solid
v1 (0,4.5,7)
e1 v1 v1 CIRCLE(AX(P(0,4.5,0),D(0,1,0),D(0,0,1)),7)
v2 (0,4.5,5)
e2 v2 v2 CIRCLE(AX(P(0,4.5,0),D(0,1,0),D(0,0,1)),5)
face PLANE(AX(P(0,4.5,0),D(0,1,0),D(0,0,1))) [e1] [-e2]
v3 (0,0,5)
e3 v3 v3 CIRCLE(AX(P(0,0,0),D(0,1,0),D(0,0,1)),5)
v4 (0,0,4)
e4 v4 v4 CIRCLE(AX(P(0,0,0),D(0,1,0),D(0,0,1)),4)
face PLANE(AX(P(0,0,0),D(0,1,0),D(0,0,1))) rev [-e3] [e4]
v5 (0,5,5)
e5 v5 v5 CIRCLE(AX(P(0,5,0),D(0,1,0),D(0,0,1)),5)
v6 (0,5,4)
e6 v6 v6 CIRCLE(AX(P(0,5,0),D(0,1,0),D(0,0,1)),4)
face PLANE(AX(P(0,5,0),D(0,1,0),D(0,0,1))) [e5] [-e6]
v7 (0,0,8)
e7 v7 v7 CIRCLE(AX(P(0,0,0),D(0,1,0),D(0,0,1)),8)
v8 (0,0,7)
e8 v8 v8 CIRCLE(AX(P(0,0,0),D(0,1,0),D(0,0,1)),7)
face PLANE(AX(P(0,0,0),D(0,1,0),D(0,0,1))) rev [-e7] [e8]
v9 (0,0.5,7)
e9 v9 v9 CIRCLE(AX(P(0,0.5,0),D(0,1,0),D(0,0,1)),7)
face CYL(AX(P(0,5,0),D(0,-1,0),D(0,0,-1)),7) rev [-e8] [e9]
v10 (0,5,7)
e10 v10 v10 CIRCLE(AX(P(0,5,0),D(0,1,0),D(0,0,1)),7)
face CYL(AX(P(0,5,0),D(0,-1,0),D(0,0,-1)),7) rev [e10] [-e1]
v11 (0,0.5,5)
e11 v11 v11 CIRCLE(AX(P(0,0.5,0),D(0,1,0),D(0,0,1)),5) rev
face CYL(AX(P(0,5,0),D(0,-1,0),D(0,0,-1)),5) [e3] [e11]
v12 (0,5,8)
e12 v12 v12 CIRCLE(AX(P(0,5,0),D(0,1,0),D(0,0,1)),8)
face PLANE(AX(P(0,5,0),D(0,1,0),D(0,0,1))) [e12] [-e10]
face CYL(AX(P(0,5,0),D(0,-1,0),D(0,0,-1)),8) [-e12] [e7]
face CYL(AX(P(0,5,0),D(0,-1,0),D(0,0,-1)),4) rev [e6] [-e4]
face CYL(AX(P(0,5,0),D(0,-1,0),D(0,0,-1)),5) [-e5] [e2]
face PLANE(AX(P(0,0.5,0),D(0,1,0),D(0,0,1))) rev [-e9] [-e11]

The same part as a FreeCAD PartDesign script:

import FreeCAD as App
import Part
import Sketcher

doc = App.newDocument("Part")
body = doc.addObject("PartDesign::Body", "Body")

sketch1 = body.newObject("Sketcher::SketchObject", "Sketch")
sketch1.AttachmentSupport = (doc.getObject("XZ_Plane"), [""])
sketch1.MapMode = "FlatFace"
sketch1.addGeometry([
    Part.Circle(App.Vector(0, 0, 0), App.Vector(0, 0, 1), 8),
    Part.Circle(App.Vector(0, 0, 0), App.Vector(0, 0, 1), 7),
], False)
sketch1.addConstraint([
    Sketcher.Constraint("Coincident", 0, 3, -1, 1),
    Sketcher.Constraint("Coincident", 1, 3, -1, 1),
    Sketcher.Constraint("Diameter", 0, 16.0),
    Sketcher.Constraint("Diameter", 1, 14.0),
])
pad1 = body.newObject("PartDesign::Pad", "Pad")
pad1.Profile = sketch1
pad1.Length = 5
pad1.Reversed = True
body2 = doc.addObject("PartDesign::Body", "Body001")

sketch2 = body2.newObject("Sketcher::SketchObject", "Sketch001")
sketch2.AttachmentSupport = (doc.getObject("XZ_Plane001"), [""])
sketch2.MapMode = "FlatFace"
sketch2.addGeometry([
    Part.Circle(App.Vector(0, 0, 0), App.Vector(0, 0, 1), 5),
    Part.Circle(App.Vector(0, 0, 0), App.Vector(0, 0, 1), 4),
], False)
sketch2.addConstraint([
    Sketcher.Constraint("Coincident", 0, 3, -1, 1),
    Sketcher.Constraint("Coincident", 1, 3, -1, 1),
    Sketcher.Constraint("Diameter", 0, 10.0),
    Sketcher.Constraint("Diameter", 1, 8.0),
])
pad2 = body2.newObject("PartDesign::Pad", "Pad001")
pad2.Profile = sketch2
pad2.Length = 5
pad2.Reversed = True
body.AllowCompound = True
doc.recompute()

boolean = body.newObject("PartDesign::Boolean", "Boolean")
boolean.Type = "Fuse"
boolean.addObjects([body2])

sketch3 = body.newObject("Sketcher::SketchObject", "Sketch002")
sketch3.AttachmentSupport = (doc.getObject("XZ_Plane"), [""])
sketch3.MapMode = "FlatFace"
sketch3.AttachmentOffset = App.Placement(App.Vector(0, 0, -0.5), App.Rotation())
sketch3.addGeometry([
    Part.Circle(App.Vector(0, 0, 0), App.Vector(0, 0, 1), 7),
    Part.Circle(App.Vector(0, 0, 0), App.Vector(0, 0, 1), 5),
], False)
sketch3.addConstraint([
    Sketcher.Constraint("Coincident", 0, 3, -1, 1),
    Sketcher.Constraint("Coincident", 1, 3, -1, 1),
    Sketcher.Constraint("Diameter", 0, 14.0),
    Sketcher.Constraint("Diameter", 1, 10.0),
])
pad3 = body.newObject("PartDesign::Pad", "Pad002")
pad3.Profile = sketch3
pad3.Length = 4
pad3.Reversed = True

doc.recompute()
